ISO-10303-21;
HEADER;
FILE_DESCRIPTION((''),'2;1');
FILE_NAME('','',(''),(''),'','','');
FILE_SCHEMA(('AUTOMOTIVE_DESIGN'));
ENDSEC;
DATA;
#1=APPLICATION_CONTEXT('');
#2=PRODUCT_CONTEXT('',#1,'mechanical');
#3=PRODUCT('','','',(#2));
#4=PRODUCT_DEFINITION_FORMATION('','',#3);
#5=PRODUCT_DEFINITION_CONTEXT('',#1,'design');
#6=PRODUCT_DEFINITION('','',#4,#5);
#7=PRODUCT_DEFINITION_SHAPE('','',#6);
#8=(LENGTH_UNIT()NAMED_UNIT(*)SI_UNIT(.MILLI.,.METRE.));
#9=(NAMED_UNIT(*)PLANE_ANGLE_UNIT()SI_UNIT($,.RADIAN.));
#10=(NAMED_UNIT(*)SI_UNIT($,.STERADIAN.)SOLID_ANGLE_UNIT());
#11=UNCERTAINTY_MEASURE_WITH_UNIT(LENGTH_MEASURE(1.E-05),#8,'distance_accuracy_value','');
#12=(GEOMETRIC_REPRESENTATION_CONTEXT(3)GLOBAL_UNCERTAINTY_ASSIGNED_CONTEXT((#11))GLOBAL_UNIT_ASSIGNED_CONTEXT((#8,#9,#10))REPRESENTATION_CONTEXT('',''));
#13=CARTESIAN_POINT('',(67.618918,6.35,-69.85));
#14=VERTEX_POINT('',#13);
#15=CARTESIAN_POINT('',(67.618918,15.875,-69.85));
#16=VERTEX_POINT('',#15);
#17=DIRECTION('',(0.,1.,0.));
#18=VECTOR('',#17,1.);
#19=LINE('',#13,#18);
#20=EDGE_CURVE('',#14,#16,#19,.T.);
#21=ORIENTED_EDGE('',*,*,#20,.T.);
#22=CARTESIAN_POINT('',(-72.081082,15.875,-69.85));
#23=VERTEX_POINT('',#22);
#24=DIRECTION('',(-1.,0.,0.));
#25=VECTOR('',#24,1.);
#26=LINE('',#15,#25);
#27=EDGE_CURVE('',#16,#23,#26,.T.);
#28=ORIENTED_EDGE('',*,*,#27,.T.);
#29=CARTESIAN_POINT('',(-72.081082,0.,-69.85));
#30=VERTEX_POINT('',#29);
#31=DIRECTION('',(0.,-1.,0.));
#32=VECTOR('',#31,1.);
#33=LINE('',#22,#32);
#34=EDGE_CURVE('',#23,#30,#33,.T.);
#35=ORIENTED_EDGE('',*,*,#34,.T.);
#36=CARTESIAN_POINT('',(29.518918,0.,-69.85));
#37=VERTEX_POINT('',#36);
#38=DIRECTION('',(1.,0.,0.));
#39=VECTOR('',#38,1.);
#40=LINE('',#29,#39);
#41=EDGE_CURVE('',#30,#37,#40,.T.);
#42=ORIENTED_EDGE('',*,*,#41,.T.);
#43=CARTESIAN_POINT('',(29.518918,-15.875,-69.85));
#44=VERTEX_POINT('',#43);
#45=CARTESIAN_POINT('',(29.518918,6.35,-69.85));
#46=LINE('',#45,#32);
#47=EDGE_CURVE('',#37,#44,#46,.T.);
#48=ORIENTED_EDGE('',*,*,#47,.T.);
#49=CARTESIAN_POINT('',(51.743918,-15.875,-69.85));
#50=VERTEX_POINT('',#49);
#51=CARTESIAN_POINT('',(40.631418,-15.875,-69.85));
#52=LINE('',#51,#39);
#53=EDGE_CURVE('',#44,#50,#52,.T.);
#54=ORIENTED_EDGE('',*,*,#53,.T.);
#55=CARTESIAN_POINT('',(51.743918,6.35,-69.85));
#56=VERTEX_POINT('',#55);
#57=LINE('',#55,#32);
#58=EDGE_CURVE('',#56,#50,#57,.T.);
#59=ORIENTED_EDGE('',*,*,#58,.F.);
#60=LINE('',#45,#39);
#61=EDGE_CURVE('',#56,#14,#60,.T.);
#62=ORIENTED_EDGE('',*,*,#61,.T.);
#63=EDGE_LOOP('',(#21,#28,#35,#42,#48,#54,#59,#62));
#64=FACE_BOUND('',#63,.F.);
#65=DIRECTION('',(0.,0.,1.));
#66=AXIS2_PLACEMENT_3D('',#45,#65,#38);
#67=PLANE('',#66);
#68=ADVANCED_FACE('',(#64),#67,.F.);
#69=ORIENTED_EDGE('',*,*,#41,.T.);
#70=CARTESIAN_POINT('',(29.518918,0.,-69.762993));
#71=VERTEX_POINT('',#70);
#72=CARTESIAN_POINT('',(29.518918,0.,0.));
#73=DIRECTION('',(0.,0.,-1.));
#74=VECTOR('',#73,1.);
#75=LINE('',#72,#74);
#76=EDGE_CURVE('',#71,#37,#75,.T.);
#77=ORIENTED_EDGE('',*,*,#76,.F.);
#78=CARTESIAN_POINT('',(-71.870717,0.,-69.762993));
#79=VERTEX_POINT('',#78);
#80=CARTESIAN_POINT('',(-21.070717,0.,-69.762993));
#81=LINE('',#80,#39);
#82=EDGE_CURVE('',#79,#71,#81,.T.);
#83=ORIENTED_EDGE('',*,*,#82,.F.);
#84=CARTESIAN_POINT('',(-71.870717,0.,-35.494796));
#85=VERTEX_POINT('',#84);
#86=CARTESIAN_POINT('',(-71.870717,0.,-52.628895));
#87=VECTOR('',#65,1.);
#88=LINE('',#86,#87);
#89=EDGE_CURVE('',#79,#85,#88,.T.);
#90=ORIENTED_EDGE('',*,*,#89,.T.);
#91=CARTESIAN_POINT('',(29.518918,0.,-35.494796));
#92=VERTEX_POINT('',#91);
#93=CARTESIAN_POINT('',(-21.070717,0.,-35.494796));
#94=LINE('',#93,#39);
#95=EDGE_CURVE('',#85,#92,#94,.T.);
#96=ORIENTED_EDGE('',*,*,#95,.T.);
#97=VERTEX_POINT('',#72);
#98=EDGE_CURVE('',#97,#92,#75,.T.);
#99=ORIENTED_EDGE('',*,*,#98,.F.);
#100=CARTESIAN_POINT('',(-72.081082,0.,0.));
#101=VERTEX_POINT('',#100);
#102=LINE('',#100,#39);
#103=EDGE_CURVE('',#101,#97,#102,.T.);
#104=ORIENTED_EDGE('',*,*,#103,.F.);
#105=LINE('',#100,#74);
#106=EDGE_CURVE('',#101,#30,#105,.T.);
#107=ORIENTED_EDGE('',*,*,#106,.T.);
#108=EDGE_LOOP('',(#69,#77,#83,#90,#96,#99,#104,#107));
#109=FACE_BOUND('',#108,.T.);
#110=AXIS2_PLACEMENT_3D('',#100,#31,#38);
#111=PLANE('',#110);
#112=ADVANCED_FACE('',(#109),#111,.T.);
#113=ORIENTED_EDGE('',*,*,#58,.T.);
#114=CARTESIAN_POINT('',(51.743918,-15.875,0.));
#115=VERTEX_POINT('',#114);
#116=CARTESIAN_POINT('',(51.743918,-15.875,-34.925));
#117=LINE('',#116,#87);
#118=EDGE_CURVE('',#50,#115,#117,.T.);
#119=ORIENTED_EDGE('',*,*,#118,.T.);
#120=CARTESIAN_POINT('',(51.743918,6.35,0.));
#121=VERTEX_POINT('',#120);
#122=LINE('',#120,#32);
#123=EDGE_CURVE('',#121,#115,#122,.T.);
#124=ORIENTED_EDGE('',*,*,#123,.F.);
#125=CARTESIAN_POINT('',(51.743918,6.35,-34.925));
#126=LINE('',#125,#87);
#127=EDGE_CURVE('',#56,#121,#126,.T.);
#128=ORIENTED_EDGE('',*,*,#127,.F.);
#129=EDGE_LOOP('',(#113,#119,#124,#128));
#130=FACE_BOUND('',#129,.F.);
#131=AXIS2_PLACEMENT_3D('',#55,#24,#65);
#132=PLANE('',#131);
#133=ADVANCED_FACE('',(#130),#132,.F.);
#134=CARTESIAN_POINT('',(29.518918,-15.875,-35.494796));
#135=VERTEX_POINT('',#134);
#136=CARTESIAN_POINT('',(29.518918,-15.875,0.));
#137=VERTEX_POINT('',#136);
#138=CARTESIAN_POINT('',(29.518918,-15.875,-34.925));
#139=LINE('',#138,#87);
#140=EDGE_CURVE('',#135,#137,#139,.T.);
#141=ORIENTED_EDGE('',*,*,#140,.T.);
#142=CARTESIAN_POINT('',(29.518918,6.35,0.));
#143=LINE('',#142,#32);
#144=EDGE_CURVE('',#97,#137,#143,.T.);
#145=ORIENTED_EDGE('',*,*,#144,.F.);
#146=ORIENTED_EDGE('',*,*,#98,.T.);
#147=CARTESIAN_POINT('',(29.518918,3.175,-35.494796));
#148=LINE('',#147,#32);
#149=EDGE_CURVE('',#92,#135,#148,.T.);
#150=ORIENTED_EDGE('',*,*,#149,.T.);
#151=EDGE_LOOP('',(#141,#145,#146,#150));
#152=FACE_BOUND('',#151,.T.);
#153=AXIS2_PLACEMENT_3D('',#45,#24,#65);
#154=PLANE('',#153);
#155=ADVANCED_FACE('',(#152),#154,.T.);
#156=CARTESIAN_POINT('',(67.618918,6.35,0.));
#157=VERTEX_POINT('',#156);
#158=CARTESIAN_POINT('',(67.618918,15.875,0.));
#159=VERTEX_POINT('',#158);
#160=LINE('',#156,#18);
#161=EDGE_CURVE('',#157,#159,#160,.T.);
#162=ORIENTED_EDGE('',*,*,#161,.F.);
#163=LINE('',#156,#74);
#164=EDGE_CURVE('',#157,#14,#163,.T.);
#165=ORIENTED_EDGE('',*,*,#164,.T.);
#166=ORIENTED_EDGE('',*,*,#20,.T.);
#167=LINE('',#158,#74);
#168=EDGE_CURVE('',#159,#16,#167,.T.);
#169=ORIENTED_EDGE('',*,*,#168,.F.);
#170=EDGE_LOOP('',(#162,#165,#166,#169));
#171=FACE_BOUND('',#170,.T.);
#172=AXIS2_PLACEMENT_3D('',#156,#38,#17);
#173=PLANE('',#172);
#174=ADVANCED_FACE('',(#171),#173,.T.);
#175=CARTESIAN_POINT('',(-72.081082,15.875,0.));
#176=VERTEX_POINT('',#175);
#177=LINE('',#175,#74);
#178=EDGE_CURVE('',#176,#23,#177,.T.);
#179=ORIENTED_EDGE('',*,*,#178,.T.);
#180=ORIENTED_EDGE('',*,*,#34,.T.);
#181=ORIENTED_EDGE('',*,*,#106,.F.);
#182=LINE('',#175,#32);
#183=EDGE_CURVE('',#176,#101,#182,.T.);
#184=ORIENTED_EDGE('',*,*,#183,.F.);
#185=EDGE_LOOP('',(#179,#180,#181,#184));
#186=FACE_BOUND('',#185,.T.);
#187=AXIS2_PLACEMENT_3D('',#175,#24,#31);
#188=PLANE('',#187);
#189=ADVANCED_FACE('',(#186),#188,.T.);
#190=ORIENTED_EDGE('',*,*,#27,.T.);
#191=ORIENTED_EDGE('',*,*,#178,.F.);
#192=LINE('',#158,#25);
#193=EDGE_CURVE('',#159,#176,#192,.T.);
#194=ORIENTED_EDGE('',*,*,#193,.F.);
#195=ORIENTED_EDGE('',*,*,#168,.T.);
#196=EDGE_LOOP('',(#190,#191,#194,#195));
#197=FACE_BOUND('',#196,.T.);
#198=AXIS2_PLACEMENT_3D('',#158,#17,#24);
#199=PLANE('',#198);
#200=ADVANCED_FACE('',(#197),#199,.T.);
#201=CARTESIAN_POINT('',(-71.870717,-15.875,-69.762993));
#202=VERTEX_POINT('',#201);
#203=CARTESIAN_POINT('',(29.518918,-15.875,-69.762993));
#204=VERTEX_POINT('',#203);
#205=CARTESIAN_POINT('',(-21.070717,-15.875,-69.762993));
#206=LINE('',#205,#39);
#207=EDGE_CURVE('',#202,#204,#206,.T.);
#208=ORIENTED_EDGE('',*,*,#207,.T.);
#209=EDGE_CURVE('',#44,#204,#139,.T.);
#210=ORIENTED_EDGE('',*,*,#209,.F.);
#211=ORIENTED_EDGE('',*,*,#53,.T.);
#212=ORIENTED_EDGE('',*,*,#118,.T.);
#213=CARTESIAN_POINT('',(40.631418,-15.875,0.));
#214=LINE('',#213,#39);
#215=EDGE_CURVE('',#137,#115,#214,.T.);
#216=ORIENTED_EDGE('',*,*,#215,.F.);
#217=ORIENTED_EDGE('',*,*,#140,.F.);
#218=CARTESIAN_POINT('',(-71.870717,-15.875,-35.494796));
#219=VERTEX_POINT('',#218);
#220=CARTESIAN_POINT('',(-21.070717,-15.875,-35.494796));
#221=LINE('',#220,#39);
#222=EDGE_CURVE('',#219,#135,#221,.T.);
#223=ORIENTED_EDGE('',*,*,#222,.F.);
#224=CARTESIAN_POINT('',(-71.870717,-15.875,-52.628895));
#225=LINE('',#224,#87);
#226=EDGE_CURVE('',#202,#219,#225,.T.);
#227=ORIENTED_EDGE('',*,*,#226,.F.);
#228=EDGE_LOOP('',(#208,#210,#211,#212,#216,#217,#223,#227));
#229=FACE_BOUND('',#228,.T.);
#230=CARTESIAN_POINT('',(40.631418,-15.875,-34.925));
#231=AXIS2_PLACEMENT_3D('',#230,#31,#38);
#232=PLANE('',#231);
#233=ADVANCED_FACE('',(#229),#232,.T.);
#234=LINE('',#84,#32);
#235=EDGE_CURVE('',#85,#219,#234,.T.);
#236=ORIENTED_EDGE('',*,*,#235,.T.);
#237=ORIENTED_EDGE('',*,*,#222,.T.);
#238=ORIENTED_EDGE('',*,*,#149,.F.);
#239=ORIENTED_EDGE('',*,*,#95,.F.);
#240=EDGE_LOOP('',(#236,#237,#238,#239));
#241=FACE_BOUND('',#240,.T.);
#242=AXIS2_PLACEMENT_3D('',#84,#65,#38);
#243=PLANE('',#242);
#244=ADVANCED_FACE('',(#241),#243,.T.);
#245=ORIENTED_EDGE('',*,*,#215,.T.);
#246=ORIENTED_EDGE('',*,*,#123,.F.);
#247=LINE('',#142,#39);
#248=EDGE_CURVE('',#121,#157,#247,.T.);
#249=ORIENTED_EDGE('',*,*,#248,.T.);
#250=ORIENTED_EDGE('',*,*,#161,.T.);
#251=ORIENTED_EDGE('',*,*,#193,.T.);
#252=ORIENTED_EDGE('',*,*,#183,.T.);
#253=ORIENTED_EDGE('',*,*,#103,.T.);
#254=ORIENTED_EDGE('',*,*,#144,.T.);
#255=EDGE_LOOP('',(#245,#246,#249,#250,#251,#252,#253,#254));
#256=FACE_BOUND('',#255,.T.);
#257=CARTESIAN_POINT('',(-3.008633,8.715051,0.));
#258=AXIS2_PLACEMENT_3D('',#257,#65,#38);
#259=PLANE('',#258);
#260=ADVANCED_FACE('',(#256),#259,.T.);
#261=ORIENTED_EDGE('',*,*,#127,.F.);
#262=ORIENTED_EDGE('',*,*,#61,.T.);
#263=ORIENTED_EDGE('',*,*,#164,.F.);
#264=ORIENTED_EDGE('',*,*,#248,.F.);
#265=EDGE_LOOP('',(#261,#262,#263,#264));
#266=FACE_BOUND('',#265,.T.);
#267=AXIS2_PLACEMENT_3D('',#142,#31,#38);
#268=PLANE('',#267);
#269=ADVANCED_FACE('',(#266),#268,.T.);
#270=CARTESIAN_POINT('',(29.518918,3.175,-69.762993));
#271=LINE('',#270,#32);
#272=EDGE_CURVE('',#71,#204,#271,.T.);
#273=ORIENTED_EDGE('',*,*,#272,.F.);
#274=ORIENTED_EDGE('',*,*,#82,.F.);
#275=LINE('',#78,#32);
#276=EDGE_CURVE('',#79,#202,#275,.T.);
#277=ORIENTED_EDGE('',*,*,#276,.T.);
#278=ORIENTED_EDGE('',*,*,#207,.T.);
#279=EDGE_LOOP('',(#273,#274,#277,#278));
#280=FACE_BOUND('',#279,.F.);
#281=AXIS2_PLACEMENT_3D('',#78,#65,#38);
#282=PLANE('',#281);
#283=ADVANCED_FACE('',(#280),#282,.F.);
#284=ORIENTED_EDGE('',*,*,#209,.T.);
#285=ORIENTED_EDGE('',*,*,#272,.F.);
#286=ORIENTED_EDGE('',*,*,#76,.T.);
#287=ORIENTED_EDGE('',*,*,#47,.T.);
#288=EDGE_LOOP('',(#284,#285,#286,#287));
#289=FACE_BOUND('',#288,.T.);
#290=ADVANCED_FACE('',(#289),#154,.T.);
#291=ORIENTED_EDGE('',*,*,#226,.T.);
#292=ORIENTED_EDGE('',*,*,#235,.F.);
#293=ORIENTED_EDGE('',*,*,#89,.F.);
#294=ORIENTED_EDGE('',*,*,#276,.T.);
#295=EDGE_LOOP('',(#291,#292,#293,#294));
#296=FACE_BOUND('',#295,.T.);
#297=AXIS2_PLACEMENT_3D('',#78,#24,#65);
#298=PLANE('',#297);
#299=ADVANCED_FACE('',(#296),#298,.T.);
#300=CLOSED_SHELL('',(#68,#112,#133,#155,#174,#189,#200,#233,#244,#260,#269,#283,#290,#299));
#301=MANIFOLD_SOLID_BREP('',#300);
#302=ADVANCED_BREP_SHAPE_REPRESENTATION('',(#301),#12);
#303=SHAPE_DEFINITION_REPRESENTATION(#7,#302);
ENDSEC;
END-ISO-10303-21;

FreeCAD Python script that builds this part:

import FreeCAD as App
import Part
import Sketcher

V = App.Vector
Q = App.Units.Quantity


def add_polygon(sketch, points):
    """Adds a closed chain of lines whose ends are joined by coincident constraints."""
    first, n = sketch.GeometryCount, len(points)
    for a, b in zip(points, points[1:] + points[:1]):
        sketch.addGeometry(Part.LineSegment(App.Vector(*a, 0), App.Vector(*b, 0)), False)
    for i in range(n):
        sketch.addConstraint(Sketcher.Constraint("Coincident", first + i, 2, first + (i + 1) % n, 1))

doc = App.newDocument("Part")
body = doc.addObject("PartDesign::Body", "Body")

# Sketch on XY plane
sketch1 = body.newObject("Sketcher::SketchObject", "Sketch")
sketch1.AttachmentSupport = (doc.getObject("XY_Plane"), [""])
sketch1.MapMode = "FlatFace"
add_polygon(sketch1, [(68, 16), (-72, 16), (-72, 0), (30, 0), (30, 6), (68, 6)])  # lines 0-5
sketch1.addConstraint(Sketcher.Constraint("Horizontal", 0))
sketch1.addConstraint(Sketcher.Constraint("Vertical", 1))
sketch1.addConstraint(Sketcher.Constraint("Horizontal", 2))
sketch1.addConstraint(Sketcher.Constraint("Vertical", 3))
sketch1.addConstraint(Sketcher.Constraint("Horizontal", 4))
sketch1.addConstraint(Sketcher.Constraint("Vertical", 5))
sketch1.addConstraint(Sketcher.Constraint("PointOnObject", 1, 2, -1))
sketch1.addConstraint(Sketcher.Constraint("DistanceX", 2, 1, 2, 2, Q("4 in")))
sketch1.addConstraint(Sketcher.Constraint("DistanceX", 0, 2, 0, 1, Q("5.5 in")))
sketch1.addConstraint(Sketcher.Constraint("DistanceY", 3, 1, 3, 2, Q("0.25 in")))
sketch1.addConstraint(Sketcher.Constraint("DistanceY", 1, 2, 1, 1, Q("0.625 in")))
sketch1.addConstraint(Sketcher.Constraint("DistanceX", 0, 2, -1, 1, Q("72.081082 mm")))
pad1 = body.newObject("PartDesign::Pad", "Pad")
pad1.Profile = sketch1
pad1.Length = Q("2.75 in")
pad1.Reversed = True

# Sketch on XZ plane
sketch2 = body.newObject("Sketcher::SketchObject", "Sketch001")
sketch2.AttachmentSupport = (doc.getObject("XZ_Plane"), [""])
sketch2.MapMode = "FlatFace"
add_polygon(sketch2, [(-72, -35), (-72, -70), (30, -70), (30, -35)])  # lines 0-3
sketch2.addConstraint(Sketcher.Constraint("Vertical", 0))
sketch2.addConstraint(Sketcher.Constraint("Horizontal", 1))
sketch2.addConstraint(Sketcher.Constraint("Vertical", 2))
sketch2.addConstraint(Sketcher.Constraint("Horizontal", 3))
sketch2.addConstraint(Sketcher.Constraint("DistanceX", 1, 1, 1, 2, Q("4 in")))
sketch2.addConstraint(Sketcher.Constraint("DistanceY", 0, 2, 0, 1, Q("34.268197 mm")))
sketch2.addConstraint(Sketcher.Constraint("DistanceX", 0, 2, -1, 1, Q("71.870717 mm")))
sketch2.addConstraint(Sketcher.Constraint("DistanceY", 0, 2, -1, 1, Q("69.762993 mm")))
pad2 = body.newObject("PartDesign::Pad", "Pad001")
pad2.Profile = sketch2
pad2.Length = Q("0.625 in")

# Sketch on XZ plane
sketch3 = body.newObject("Sketcher::SketchObject", "Sketch002")
sketch3.AttachmentSupport = (doc.getObject("XZ_Plane"), [""])
sketch3.MapMode = "FlatFace"
sketch3.AttachmentOffset = App.Placement(V(0, 0, -0.25 * 25.4), App.Rotation())
add_polygon(sketch3, [(30, 0), (30, -70), (52, -70), (52, 0)])  # lines 0-3
sketch3.addConstraint(Sketcher.Constraint("Vertical", 0))
sketch3.addConstraint(Sketcher.Constraint("Horizontal", 1))
sketch3.addConstraint(Sketcher.Constraint("Vertical", 2))
sketch3.addConstraint(Sketcher.Constraint("Horizontal", 3))
sketch3.addConstraint(Sketcher.Constraint("PointOnObject", 2, 2, -1))
sketch3.addConstraint(Sketcher.Constraint("DistanceY", 0, 2, 0, 1, Q("2.75 in")))
sketch3.addConstraint(Sketcher.Constraint("DistanceX", 1, 1, 1, 2, Q("0.875 in")))
sketch3.addConstraint(Sketcher.Constraint("DistanceX", -1, 1, 0, 2, Q("29.518918 mm")))
pad3 = body.newObject("PartDesign::Pad", "Pad002")
pad3.Profile = sketch3
pad3.Length = Q("0.875 in")

doc.recompute()
